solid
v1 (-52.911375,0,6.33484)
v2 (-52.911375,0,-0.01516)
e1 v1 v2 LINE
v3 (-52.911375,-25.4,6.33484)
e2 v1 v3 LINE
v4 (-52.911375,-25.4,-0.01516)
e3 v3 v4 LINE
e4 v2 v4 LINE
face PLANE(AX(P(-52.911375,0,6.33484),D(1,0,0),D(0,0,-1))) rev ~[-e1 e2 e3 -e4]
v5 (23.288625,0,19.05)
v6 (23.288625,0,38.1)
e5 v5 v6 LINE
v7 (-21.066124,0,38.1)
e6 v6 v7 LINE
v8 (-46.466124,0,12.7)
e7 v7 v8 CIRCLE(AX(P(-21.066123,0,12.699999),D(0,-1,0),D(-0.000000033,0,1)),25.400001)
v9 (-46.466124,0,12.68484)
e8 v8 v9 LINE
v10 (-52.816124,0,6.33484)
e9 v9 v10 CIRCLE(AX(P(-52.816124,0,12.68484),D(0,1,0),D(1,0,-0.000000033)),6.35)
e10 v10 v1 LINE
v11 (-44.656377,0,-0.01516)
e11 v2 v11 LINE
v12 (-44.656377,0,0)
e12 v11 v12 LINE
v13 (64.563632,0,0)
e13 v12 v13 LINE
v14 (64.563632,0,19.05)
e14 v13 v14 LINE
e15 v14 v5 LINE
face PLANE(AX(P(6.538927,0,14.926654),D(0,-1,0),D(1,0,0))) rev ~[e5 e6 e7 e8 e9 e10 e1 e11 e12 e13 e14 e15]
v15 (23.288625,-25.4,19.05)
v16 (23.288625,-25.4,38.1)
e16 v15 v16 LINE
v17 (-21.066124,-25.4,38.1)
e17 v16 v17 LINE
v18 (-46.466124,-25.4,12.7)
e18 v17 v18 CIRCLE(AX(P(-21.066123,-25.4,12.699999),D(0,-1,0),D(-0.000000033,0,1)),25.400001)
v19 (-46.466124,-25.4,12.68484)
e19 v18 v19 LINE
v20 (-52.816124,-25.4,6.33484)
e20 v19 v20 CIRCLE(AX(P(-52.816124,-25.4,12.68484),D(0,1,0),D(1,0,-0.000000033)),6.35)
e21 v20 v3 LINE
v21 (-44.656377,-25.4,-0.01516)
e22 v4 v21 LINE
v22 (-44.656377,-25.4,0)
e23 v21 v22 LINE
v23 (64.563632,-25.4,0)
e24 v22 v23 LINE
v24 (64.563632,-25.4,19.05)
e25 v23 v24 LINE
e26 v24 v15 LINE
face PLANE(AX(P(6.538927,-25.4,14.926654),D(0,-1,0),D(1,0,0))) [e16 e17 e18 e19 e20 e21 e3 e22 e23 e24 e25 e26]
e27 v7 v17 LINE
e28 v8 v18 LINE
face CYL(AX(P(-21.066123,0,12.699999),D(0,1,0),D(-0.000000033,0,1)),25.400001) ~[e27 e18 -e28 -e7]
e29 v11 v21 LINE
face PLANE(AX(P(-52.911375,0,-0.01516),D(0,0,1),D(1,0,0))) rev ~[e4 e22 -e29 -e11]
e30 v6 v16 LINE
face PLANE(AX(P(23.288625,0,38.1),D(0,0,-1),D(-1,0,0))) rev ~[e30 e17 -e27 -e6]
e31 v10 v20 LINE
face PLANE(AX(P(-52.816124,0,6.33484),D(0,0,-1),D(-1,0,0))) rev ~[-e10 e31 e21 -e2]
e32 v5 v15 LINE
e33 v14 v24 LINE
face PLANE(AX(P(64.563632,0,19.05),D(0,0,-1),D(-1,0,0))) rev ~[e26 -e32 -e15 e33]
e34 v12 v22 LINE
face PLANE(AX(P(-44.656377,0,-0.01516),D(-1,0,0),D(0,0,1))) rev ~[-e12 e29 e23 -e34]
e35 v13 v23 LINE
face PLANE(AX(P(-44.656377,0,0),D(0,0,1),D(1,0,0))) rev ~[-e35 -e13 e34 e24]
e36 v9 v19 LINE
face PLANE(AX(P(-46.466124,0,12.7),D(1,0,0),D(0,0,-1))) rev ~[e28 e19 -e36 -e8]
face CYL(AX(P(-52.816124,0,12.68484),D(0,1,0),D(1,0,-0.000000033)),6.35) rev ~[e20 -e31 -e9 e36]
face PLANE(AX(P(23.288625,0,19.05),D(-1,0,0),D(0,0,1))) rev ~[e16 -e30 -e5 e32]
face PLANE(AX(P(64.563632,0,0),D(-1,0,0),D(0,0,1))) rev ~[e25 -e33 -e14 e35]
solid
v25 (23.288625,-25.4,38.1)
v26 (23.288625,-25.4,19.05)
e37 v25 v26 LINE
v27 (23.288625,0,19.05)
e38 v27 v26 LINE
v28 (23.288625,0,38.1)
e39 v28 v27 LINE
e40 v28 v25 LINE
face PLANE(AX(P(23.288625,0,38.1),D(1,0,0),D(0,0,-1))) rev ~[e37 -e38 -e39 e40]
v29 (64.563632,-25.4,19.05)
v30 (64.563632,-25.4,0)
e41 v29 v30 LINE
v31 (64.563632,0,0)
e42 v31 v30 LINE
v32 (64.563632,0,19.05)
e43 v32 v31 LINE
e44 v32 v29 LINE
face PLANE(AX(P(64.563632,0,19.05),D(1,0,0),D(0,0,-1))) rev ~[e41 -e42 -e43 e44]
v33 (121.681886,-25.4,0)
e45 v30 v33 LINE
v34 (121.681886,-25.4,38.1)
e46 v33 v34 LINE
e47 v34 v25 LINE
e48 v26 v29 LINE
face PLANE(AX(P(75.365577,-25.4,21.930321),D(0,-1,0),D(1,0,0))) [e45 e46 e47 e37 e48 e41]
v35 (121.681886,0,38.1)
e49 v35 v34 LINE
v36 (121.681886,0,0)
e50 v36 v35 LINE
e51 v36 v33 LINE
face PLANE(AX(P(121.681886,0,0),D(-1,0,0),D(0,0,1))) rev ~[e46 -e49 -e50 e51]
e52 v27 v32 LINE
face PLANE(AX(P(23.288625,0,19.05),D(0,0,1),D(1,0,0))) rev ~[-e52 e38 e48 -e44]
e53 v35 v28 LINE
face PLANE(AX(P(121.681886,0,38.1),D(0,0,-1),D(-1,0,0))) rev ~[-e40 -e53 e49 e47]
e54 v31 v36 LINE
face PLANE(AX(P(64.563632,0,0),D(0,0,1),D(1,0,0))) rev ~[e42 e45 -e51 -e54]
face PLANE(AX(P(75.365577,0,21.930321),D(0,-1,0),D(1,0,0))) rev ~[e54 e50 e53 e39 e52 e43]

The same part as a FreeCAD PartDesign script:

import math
import FreeCAD as App
import Part
import Sketcher

V = App.Vector
Q = App.Units.Quantity


def add_polygon(sketch, points):
    """Adds a closed chain of lines whose ends are joined by coincident constraints."""
    first, n = sketch.GeometryCount, len(points)
    for a, b in zip(points, points[1:] + points[:1]):
        sketch.addGeometry(Part.LineSegment(App.Vector(*a, 0), App.Vector(*b, 0)), False)
    for i in range(n):
        sketch.addConstraint(Sketcher.Constraint("Coincident", first + i, 2, first + (i + 1) % n, 1))

doc = App.newDocument("Part")
body = doc.addObject("PartDesign::Body", "Body")

sketch1 = body.newObject("Sketcher::SketchObject", "Sketch")
sketch1.AttachmentSupport = (doc.getObject("XZ_Plane"), [""])
sketch1.MapMode = "FlatFace"
sketch1.addGeometry([
    Part.LineSegment(V(-44.656, 0, 0), V(64.564, 0, 0)),
    Part.LineSegment(V(64.564, 0, 0), V(64.564, 19.05, 0)),
    Part.LineSegment(V(64.564, 19.05, 0), V(23.289, 19.05, 0)),
    Part.LineSegment(V(23.289, 19.05, 0), V(23.289, 38.1, 0)),
    Part.LineSegment(V(23.289, 38.1, 0), V(-21.066, 38.1, 0)),
    Part.ArcOfCircle(Part.Circle(V(-21.066, 12.7, 0), V(0, 0, 1), 25.4), math.radians(90), math.radians(180)),
    Part.LineSegment(V(-46.466, 12.7, 0), V(-46.466, 12.685, 0)),
    Part.ArcOfCircle(Part.Circle(V(-52.816, 12.685, 0), V(0, 0, 1), 6.35), math.radians(-90), math.radians(0)),
    Part.LineSegment(V(-52.816, 6.335, 0), V(-52.911, 6.335, 0)),
    Part.LineSegment(V(-52.911, 6.335, 0), V(-52.911, -0.015, 0)),
    Part.LineSegment(V(-52.911, -0.015, 0), V(-44.656, -0.015, 0)),
    Part.LineSegment(V(-44.656, -0.015, 0), V(-44.656, 0, 0)),
], False)
sketch1.addConstraint([
    Sketcher.Constraint("Coincident", 0, 2, 1, 1),
    Sketcher.Constraint("Coincident", 1, 2, 2, 1),
    Sketcher.Constraint("Coincident", 2, 2, 3, 1),
    Sketcher.Constraint("Coincident", 3, 2, 4, 1),
    Sketcher.Constraint("Tangent", 4, 2, 5, 1),
    Sketcher.Constraint("Tangent", 5, 2, 6, 1),
    Sketcher.Constraint("Tangent", 6, 2, 7, 2),
    Sketcher.Constraint("Tangent", 7, 1, 8, 1),
    Sketcher.Constraint("Coincident", 8, 2, 9, 1),
    Sketcher.Constraint("Coincident", 9, 2, 10, 1),
    Sketcher.Constraint("Coincident", 10, 2, 11, 1),
    Sketcher.Constraint("Coincident", 11, 2, 0, 1),
    Sketcher.Constraint("Horizontal", 0),
    Sketcher.Constraint("Vertical", 1),
    Sketcher.Constraint("Horizontal", 2),
    Sketcher.Constraint("Vertical", 3),
    Sketcher.Constraint("Horizontal", 4),
    Sketcher.Constraint("Horizontal", 8),
    Sketcher.Constraint("Vertical", 9),
    Sketcher.Constraint("Horizontal", 10),
    Sketcher.Constraint("Vertical", 11),
    Sketcher.Constraint("PointOnObject", 0, 2, -1),
    Sketcher.Constraint("Horizontal", 7, 3, 6, 2),
    Sketcher.Constraint("Equal", 1, 3),
    Sketcher.Constraint("Equal", 6, 11),
    Sketcher.Constraint("Radius", 5, Q("1 in")),
    Sketcher.Constraint("Radius", 7, Q("0.25 in")),
    Sketcher.Constraint("DistanceY", 1, 1, 1, 2, Q("0.75 in")),
    Sketcher.Constraint("DistanceX", 10, 1, 10, 2, Q("0.3249999 in")),
    Sketcher.Constraint("DistanceX", 0, 1, 0, 2, Q("109.220009 mm")),
    Sketcher.Constraint("DistanceX", 4, 2, 4, 1, Q("44.354749 mm")),
    Sketcher.Constraint("DistanceX", 8, 2, 8, 1, Q("0.095251 mm")),
    Sketcher.Constraint("DistanceY", 6, 2, 6, 1, Q("0.01516 mm")),
    Sketcher.Constraint("DistanceX", -1, 1, 0, 2, Q("64.563632 mm")),
])
pad1 = body.newObject("PartDesign::Pad", "Pad")
pad1.Profile = sketch1
pad1.Length = Q("1 in")
body2 = doc.addObject("PartDesign::Body", "Body001")

sketch2 = body2.newObject("Sketcher::SketchObject", "Sketch001")
sketch2.AttachmentSupport = (doc.getObject("XZ_Plane001"), [""])
sketch2.MapMode = "FlatFace"
add_polygon(sketch2, [(65, 19), (65, 0), (122, 0), (122, 38), (23, 38), (23, 19)])
sketch2.addConstraint([
    Sketcher.Constraint("Vertical", 0),
    Sketcher.Constraint("Horizontal", 1),
    Sketcher.Constraint("Vertical", 2),
    Sketcher.Constraint("Horizontal", 3),
    Sketcher.Constraint("Vertical", 4),
    Sketcher.Constraint("Horizontal", 5),
    Sketcher.Constraint("PointOnObject", 0, 2, -1),
    Sketcher.Constraint("Equal", 0, 4),
    Sketcher.Constraint("DistanceY", 2, 1, 2, 2, Q("1.5 in")),
    Sketcher.Constraint("DistanceX", 3, 2, 3, 1, Q("98.393261 mm")),
    Sketcher.Constraint("DistanceX", 1, 1, 1, 2, Q("57.118254 mm")),
    Sketcher.Constraint("DistanceX", -1, 1, 0, 2, Q("64.563632 mm")),
])
pad2 = body2.newObject("PartDesign::Pad", "Pad001")
pad2.Profile = sketch2
pad2.Length = Q("1 in")

doc.recompute()
